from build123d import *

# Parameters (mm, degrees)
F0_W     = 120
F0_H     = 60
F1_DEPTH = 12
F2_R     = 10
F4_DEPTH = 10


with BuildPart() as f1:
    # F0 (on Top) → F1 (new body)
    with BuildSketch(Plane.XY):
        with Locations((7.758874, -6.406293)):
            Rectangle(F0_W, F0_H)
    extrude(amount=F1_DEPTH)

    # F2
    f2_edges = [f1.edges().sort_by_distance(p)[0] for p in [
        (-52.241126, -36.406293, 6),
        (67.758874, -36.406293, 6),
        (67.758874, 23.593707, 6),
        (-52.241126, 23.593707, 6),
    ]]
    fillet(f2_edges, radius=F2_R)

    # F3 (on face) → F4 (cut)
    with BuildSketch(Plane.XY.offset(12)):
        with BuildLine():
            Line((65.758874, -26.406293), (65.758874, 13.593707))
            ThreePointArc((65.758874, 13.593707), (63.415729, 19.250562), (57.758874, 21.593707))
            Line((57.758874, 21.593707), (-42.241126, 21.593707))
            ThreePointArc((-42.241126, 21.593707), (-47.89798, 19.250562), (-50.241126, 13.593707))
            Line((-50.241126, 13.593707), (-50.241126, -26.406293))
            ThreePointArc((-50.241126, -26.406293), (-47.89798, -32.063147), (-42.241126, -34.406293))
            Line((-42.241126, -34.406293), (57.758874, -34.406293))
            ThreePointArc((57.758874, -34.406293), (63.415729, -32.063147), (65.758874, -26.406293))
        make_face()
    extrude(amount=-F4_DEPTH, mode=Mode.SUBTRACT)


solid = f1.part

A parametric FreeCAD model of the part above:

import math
import FreeCAD as App
import Part
import Sketcher
from FreeCAD import Vector


def edges_at(feature, points):
    """Names of the edges that pass closest to the given points."""
    edges = feature.Shape.Edges
    near = lambda p: min(range(len(edges)), key=lambda i: edges[i].distToShape(Part.Vertex(*p))[0])
    return sorted({f"Edge{near(p) + 1}" for p in points})

doc = App.newDocument("Part")
params = doc.addObject("Spreadsheet::Sheet", "Params")
for row, (alias, value) in enumerate([
    ("sketch1_width", "120 mm"),
    ("sketch1_height", "60 mm"),
    ("pad1_length", "12 mm"),
    ("fillet_radius", "10 mm"),
    ("sketch2_radius", "7.999999 mm"),
    ("sketch2_width", "100 mm"),
    ("sketch2_height", "40 mm"),
    ("pocket1_length", "10 mm"),
], start=1):
    params.set(f"A{row}", alias)
    params.set(f"B{row}", "=" + value)
    params.setAlias(f"B{row}", alias)

body = doc.addObject("PartDesign::Body", "Body")

sketch1 = doc.addObject("Sketcher::SketchObject", "Sketch")
body.addObject(sketch1)
sketch1.AttachmentSupport = (doc.XY_Plane, [""])
sketch1.MapMode = "FlatFace"
sketch1.addGeometry(Part.LineSegment(Vector(-52, 24, 0), Vector(-52, -36, 0)), False)
sketch1.addGeometry(Part.LineSegment(Vector(-52, -36, 0), Vector(68, -36, 0)), False)
sketch1.addGeometry(Part.LineSegment(Vector(68, -36, 0), Vector(68, 24, 0)), False)
sketch1.addGeometry(Part.LineSegment(Vector(68, 24, 0), Vector(-52, 24, 0)), False)
sketch1.addConstraint(Sketcher.Constraint("Coincident", 0, 2, 1, 1))
sketch1.addConstraint(Sketcher.Constraint("Coincident", 1, 2, 2, 1))
sketch1.addConstraint(Sketcher.Constraint("Coincident", 2, 2, 3, 1))
sketch1.addConstraint(Sketcher.Constraint("Coincident", 3, 2, 0, 1))
sketch1.addConstraint(Sketcher.Constraint("Vertical", 0))
sketch1.addConstraint(Sketcher.Constraint("Horizontal", 1))
sketch1.addConstraint(Sketcher.Constraint("Vertical", 2))
sketch1.addConstraint(Sketcher.Constraint("Horizontal", 3))
sketch1.addConstraint(Sketcher.Constraint("DistanceX", 1, 1, 1, 2, 120.0))
sketch1.addConstraint(Sketcher.Constraint("DistanceY", 0, 2, 0, 1, 60.0))
sketch1.addConstraint(Sketcher.Constraint("DistanceX", 0, 2, -1, 1, 52.241126))
sketch1.addConstraint(Sketcher.Constraint("DistanceY", 0, 2, -1, 1, 36.406293))
sketch1.setExpression("Constraints[8]", "Params.sketch1_width")
sketch1.setExpression("Constraints[9]", "Params.sketch1_height")
pad1 = doc.addObject("PartDesign::Pad", "Pad")
body.addObject(pad1)
pad1.Profile = sketch1
pad1.setExpression("Length", "Params.pad1_length")
doc.recompute()

fillet = doc.addObject("PartDesign::Fillet", "Fillet")
body.addObject(fillet)
fillet.Base = (pad1, edges_at(pad1, [
    (-52.241, -36.406, 6),
    (67.759, -36.406, 6),
    (67.759, 23.594, 6),
    (-52.241, 23.594, 6),
]))
fillet.setExpression("Radius", "Params.fillet_radius")

sketch2 = doc.addObject("Sketcher::SketchObject", "Sketch001")
body.addObject(sketch2)
sketch2.AttachmentSupport = (doc.XY_Plane, [""])
sketch2.MapMode = "FlatFace"
sketch2.AttachmentOffset = App.Placement(Vector(0, 0, 12), App.Rotation())
sketch2.addGeometry(Part.LineSegment(Vector(66, -26, 0), Vector(66, 14, 0)), False)
sketch2.addGeometry(Part.ArcOfCircle(Part.Circle(Vector(58, 14, 0), Vector(0, 0, 1), 8), math.radians(0), math.radians(90)), False)
sketch2.addGeometry(Part.LineSegment(Vector(58, 22, 0), Vector(-42, 22, 0)), False)
sketch2.addGeometry(Part.ArcOfCircle(Part.Circle(Vector(-42, 14, 0), Vector(0, 0, 1), 8), math.radians(90), math.radians(180)), False)
sketch2.addGeometry(Part.LineSegment(Vector(-50, 14, 0), Vector(-50, -26, 0)), False)
sketch2.addGeometry(Part.ArcOfCircle(Part.Circle(Vector(-42, -26, 0), Vector(0, 0, 1), 8), math.radians(-180), math.radians(-90)), False)
sketch2.addGeometry(Part.LineSegment(Vector(-42, -34, 0), Vector(58, -34, 0)), False)
sketch2.addGeometry(Part.ArcOfCircle(Part.Circle(Vector(58, -26, 0), Vector(0, 0, 1), 8), math.radians(-90), math.radians(0)), False)
sketch2.addConstraint(Sketcher.Constraint("Tangent", 0, 2, 1, 1))
sketch2.addConstraint(Sketcher.Constraint("Tangent", 1, 2, 2, 1))
sketch2.addConstraint(Sketcher.Constraint("Tangent", 2, 2, 3, 1))
sketch2.addConstraint(Sketcher.Constraint("Tangent", 3, 2, 4, 1))
sketch2.addConstraint(Sketcher.Constraint("Tangent", 4, 2, 5, 1))
sketch2.addConstraint(Sketcher.Constraint("Tangent", 5, 2, 6, 1))
sketch2.addConstraint(Sketcher.Constraint("Tangent", 6, 2, 7, 1))
sketch2.addConstraint(Sketcher.Constraint("Tangent", 7, 2, 0, 1))
sketch2.addConstraint(Sketcher.Constraint("Vertical", 0))
sketch2.addConstraint(Sketcher.Constraint("Horizontal", 2))
sketch2.addConstraint(Sketcher.Constraint("Vertical", 4))
sketch2.addConstraint(Sketcher.Constraint("Horizontal", 6))
sketch2.addConstraint(Sketcher.Constraint("Equal", 1, 3))
sketch2.addConstraint(Sketcher.Constraint("Equal", 3, 5))
sketch2.addConstraint(Sketcher.Constraint("Equal", 5, 7))
sketch2.addConstraint(Sketcher.Constraint("Radius", 3, 7.999999))
sketch2.addConstraint(Sketcher.Constraint("DistanceX", 2, 2, 2, 1, 100.0))
sketch2.addConstraint(Sketcher.Constraint("DistanceY", 0, 1, 0, 2, 40.0))
sketch2.addConstraint(Sketcher.Constraint("DistanceY", -1, 1, 1, 3, 13.59371))
sketch2.addConstraint(Sketcher.Constraint("DistanceX", -1, 1, 1, 3, 57.758877))
sketch2.setExpression("Constraints[15]", "Params.sketch2_radius")
sketch2.setExpression("Constraints[16]", "Params.sketch2_width")
sketch2.setExpression("Constraints[17]", "Params.sketch2_height")
pocket1 = doc.addObject("PartDesign::Pocket", "Pocket")
body.addObject(pocket1)
pocket1.Profile = sketch2
pocket1.setExpression("Length", "Params.pocket1_length")

doc.recompute()
